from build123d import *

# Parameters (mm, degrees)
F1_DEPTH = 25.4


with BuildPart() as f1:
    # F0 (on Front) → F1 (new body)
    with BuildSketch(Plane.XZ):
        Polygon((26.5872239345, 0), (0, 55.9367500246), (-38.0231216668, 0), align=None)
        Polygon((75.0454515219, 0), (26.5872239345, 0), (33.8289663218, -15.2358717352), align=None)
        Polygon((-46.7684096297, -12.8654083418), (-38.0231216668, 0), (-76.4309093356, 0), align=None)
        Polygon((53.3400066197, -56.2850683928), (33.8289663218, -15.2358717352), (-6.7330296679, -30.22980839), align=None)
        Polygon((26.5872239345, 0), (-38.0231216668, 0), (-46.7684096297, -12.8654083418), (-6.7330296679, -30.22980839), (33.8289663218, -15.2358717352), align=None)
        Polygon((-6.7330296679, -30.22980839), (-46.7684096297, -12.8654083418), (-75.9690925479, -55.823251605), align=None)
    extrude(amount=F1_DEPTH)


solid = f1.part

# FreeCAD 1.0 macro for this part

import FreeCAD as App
import Part
import Sketcher
from FreeCAD import Vector
Q = App.Units.Quantity


def add_polygon(sketch, points):
    """Adds a closed chain of lines whose ends are joined by coincident constraints."""
    first, n = sketch.GeometryCount, len(points)
    for a, b in zip(points, points[1:] + points[:1]):
        sketch.addGeometry(Part.LineSegment(App.Vector(*a, 0), App.Vector(*b, 0)), False)
    for i in range(n):
        sketch.addConstraint(Sketcher.Constraint("Coincident", first + i, 2, first + (i + 1) % n, 1))

doc = App.newDocument("Part")
body = doc.addObject("PartDesign::Body", "Body")

sketch1 = body.newObject("Sketcher::SketchObject", "Sketch")
sketch1.AttachmentSupport = (doc.getObject("XZ_Plane"), [""])
sketch1.MapMode = "FlatFace"
add_polygon(sketch1, [(27, 0), (0, 56), (-38, 0), (-76, 0), (-47, -13), (-76, -56), (-7, -30), (53, -56), (34, -15), (75, 0)])
sketch1.addConstraint([
    Sketcher.Constraint("Horizontal", 2),
    Sketcher.Constraint("Horizontal", 9),
    Sketcher.Constraint("PointOnObject", 0, 2, -2),
    Sketcher.Constraint("PointOnObject", 1, 2, -1),
    Sketcher.Constraint("PointOnObject", 8, 2, -1),
    Sketcher.Constraint("Parallel", 1, 4),
    Sketcher.Constraint("Parallel", 3, 6),
    Sketcher.Constraint("Parallel", 0, 7),
    Sketcher.Constraint("Parallel", 5, 8),
    Sketcher.Constraint("DistanceY", 4, 2, 0, 2, Q("4.4000001 in")),
    Sketcher.Constraint("DistanceX", 2, 2, 3, 2, Q("29.6625 mm")),
    Sketcher.Constraint("DistanceY", 5, 2, 3, 2, Q("17.3644 mm")),
    Sketcher.Constraint("DistanceX", 4, 2, 6, 2, Q("129.309099 mm")),
    Sketcher.Constraint("Distance", 0, Q("61.93384 mm")),
    Sketcher.Constraint("Distance", 6, Q("65.480121 mm")),
    Sketcher.Constraint("DistanceX", 2, 2, 2, 1, Q("38.407788 mm")),
    Sketcher.Constraint("DistanceX", 9, 2, 9, 1, Q("48.458228 mm")),
    Sketcher.Constraint("DistanceY", -1, 1, 0, 2, Q("55.93675 mm")),
    Sketcher.Constraint("DistanceX", 1, 2, -1, 1, Q("38.023122 mm")),
    Sketcher.Constraint("DistanceY", 3, 2, -1, 1, Q("12.865408 mm")),
])
pad1 = body.newObject("PartDesign::Pad", "Pad")
pad1.Profile = sketch1
pad1.Length = Q("1 in")

doc.recompute()
